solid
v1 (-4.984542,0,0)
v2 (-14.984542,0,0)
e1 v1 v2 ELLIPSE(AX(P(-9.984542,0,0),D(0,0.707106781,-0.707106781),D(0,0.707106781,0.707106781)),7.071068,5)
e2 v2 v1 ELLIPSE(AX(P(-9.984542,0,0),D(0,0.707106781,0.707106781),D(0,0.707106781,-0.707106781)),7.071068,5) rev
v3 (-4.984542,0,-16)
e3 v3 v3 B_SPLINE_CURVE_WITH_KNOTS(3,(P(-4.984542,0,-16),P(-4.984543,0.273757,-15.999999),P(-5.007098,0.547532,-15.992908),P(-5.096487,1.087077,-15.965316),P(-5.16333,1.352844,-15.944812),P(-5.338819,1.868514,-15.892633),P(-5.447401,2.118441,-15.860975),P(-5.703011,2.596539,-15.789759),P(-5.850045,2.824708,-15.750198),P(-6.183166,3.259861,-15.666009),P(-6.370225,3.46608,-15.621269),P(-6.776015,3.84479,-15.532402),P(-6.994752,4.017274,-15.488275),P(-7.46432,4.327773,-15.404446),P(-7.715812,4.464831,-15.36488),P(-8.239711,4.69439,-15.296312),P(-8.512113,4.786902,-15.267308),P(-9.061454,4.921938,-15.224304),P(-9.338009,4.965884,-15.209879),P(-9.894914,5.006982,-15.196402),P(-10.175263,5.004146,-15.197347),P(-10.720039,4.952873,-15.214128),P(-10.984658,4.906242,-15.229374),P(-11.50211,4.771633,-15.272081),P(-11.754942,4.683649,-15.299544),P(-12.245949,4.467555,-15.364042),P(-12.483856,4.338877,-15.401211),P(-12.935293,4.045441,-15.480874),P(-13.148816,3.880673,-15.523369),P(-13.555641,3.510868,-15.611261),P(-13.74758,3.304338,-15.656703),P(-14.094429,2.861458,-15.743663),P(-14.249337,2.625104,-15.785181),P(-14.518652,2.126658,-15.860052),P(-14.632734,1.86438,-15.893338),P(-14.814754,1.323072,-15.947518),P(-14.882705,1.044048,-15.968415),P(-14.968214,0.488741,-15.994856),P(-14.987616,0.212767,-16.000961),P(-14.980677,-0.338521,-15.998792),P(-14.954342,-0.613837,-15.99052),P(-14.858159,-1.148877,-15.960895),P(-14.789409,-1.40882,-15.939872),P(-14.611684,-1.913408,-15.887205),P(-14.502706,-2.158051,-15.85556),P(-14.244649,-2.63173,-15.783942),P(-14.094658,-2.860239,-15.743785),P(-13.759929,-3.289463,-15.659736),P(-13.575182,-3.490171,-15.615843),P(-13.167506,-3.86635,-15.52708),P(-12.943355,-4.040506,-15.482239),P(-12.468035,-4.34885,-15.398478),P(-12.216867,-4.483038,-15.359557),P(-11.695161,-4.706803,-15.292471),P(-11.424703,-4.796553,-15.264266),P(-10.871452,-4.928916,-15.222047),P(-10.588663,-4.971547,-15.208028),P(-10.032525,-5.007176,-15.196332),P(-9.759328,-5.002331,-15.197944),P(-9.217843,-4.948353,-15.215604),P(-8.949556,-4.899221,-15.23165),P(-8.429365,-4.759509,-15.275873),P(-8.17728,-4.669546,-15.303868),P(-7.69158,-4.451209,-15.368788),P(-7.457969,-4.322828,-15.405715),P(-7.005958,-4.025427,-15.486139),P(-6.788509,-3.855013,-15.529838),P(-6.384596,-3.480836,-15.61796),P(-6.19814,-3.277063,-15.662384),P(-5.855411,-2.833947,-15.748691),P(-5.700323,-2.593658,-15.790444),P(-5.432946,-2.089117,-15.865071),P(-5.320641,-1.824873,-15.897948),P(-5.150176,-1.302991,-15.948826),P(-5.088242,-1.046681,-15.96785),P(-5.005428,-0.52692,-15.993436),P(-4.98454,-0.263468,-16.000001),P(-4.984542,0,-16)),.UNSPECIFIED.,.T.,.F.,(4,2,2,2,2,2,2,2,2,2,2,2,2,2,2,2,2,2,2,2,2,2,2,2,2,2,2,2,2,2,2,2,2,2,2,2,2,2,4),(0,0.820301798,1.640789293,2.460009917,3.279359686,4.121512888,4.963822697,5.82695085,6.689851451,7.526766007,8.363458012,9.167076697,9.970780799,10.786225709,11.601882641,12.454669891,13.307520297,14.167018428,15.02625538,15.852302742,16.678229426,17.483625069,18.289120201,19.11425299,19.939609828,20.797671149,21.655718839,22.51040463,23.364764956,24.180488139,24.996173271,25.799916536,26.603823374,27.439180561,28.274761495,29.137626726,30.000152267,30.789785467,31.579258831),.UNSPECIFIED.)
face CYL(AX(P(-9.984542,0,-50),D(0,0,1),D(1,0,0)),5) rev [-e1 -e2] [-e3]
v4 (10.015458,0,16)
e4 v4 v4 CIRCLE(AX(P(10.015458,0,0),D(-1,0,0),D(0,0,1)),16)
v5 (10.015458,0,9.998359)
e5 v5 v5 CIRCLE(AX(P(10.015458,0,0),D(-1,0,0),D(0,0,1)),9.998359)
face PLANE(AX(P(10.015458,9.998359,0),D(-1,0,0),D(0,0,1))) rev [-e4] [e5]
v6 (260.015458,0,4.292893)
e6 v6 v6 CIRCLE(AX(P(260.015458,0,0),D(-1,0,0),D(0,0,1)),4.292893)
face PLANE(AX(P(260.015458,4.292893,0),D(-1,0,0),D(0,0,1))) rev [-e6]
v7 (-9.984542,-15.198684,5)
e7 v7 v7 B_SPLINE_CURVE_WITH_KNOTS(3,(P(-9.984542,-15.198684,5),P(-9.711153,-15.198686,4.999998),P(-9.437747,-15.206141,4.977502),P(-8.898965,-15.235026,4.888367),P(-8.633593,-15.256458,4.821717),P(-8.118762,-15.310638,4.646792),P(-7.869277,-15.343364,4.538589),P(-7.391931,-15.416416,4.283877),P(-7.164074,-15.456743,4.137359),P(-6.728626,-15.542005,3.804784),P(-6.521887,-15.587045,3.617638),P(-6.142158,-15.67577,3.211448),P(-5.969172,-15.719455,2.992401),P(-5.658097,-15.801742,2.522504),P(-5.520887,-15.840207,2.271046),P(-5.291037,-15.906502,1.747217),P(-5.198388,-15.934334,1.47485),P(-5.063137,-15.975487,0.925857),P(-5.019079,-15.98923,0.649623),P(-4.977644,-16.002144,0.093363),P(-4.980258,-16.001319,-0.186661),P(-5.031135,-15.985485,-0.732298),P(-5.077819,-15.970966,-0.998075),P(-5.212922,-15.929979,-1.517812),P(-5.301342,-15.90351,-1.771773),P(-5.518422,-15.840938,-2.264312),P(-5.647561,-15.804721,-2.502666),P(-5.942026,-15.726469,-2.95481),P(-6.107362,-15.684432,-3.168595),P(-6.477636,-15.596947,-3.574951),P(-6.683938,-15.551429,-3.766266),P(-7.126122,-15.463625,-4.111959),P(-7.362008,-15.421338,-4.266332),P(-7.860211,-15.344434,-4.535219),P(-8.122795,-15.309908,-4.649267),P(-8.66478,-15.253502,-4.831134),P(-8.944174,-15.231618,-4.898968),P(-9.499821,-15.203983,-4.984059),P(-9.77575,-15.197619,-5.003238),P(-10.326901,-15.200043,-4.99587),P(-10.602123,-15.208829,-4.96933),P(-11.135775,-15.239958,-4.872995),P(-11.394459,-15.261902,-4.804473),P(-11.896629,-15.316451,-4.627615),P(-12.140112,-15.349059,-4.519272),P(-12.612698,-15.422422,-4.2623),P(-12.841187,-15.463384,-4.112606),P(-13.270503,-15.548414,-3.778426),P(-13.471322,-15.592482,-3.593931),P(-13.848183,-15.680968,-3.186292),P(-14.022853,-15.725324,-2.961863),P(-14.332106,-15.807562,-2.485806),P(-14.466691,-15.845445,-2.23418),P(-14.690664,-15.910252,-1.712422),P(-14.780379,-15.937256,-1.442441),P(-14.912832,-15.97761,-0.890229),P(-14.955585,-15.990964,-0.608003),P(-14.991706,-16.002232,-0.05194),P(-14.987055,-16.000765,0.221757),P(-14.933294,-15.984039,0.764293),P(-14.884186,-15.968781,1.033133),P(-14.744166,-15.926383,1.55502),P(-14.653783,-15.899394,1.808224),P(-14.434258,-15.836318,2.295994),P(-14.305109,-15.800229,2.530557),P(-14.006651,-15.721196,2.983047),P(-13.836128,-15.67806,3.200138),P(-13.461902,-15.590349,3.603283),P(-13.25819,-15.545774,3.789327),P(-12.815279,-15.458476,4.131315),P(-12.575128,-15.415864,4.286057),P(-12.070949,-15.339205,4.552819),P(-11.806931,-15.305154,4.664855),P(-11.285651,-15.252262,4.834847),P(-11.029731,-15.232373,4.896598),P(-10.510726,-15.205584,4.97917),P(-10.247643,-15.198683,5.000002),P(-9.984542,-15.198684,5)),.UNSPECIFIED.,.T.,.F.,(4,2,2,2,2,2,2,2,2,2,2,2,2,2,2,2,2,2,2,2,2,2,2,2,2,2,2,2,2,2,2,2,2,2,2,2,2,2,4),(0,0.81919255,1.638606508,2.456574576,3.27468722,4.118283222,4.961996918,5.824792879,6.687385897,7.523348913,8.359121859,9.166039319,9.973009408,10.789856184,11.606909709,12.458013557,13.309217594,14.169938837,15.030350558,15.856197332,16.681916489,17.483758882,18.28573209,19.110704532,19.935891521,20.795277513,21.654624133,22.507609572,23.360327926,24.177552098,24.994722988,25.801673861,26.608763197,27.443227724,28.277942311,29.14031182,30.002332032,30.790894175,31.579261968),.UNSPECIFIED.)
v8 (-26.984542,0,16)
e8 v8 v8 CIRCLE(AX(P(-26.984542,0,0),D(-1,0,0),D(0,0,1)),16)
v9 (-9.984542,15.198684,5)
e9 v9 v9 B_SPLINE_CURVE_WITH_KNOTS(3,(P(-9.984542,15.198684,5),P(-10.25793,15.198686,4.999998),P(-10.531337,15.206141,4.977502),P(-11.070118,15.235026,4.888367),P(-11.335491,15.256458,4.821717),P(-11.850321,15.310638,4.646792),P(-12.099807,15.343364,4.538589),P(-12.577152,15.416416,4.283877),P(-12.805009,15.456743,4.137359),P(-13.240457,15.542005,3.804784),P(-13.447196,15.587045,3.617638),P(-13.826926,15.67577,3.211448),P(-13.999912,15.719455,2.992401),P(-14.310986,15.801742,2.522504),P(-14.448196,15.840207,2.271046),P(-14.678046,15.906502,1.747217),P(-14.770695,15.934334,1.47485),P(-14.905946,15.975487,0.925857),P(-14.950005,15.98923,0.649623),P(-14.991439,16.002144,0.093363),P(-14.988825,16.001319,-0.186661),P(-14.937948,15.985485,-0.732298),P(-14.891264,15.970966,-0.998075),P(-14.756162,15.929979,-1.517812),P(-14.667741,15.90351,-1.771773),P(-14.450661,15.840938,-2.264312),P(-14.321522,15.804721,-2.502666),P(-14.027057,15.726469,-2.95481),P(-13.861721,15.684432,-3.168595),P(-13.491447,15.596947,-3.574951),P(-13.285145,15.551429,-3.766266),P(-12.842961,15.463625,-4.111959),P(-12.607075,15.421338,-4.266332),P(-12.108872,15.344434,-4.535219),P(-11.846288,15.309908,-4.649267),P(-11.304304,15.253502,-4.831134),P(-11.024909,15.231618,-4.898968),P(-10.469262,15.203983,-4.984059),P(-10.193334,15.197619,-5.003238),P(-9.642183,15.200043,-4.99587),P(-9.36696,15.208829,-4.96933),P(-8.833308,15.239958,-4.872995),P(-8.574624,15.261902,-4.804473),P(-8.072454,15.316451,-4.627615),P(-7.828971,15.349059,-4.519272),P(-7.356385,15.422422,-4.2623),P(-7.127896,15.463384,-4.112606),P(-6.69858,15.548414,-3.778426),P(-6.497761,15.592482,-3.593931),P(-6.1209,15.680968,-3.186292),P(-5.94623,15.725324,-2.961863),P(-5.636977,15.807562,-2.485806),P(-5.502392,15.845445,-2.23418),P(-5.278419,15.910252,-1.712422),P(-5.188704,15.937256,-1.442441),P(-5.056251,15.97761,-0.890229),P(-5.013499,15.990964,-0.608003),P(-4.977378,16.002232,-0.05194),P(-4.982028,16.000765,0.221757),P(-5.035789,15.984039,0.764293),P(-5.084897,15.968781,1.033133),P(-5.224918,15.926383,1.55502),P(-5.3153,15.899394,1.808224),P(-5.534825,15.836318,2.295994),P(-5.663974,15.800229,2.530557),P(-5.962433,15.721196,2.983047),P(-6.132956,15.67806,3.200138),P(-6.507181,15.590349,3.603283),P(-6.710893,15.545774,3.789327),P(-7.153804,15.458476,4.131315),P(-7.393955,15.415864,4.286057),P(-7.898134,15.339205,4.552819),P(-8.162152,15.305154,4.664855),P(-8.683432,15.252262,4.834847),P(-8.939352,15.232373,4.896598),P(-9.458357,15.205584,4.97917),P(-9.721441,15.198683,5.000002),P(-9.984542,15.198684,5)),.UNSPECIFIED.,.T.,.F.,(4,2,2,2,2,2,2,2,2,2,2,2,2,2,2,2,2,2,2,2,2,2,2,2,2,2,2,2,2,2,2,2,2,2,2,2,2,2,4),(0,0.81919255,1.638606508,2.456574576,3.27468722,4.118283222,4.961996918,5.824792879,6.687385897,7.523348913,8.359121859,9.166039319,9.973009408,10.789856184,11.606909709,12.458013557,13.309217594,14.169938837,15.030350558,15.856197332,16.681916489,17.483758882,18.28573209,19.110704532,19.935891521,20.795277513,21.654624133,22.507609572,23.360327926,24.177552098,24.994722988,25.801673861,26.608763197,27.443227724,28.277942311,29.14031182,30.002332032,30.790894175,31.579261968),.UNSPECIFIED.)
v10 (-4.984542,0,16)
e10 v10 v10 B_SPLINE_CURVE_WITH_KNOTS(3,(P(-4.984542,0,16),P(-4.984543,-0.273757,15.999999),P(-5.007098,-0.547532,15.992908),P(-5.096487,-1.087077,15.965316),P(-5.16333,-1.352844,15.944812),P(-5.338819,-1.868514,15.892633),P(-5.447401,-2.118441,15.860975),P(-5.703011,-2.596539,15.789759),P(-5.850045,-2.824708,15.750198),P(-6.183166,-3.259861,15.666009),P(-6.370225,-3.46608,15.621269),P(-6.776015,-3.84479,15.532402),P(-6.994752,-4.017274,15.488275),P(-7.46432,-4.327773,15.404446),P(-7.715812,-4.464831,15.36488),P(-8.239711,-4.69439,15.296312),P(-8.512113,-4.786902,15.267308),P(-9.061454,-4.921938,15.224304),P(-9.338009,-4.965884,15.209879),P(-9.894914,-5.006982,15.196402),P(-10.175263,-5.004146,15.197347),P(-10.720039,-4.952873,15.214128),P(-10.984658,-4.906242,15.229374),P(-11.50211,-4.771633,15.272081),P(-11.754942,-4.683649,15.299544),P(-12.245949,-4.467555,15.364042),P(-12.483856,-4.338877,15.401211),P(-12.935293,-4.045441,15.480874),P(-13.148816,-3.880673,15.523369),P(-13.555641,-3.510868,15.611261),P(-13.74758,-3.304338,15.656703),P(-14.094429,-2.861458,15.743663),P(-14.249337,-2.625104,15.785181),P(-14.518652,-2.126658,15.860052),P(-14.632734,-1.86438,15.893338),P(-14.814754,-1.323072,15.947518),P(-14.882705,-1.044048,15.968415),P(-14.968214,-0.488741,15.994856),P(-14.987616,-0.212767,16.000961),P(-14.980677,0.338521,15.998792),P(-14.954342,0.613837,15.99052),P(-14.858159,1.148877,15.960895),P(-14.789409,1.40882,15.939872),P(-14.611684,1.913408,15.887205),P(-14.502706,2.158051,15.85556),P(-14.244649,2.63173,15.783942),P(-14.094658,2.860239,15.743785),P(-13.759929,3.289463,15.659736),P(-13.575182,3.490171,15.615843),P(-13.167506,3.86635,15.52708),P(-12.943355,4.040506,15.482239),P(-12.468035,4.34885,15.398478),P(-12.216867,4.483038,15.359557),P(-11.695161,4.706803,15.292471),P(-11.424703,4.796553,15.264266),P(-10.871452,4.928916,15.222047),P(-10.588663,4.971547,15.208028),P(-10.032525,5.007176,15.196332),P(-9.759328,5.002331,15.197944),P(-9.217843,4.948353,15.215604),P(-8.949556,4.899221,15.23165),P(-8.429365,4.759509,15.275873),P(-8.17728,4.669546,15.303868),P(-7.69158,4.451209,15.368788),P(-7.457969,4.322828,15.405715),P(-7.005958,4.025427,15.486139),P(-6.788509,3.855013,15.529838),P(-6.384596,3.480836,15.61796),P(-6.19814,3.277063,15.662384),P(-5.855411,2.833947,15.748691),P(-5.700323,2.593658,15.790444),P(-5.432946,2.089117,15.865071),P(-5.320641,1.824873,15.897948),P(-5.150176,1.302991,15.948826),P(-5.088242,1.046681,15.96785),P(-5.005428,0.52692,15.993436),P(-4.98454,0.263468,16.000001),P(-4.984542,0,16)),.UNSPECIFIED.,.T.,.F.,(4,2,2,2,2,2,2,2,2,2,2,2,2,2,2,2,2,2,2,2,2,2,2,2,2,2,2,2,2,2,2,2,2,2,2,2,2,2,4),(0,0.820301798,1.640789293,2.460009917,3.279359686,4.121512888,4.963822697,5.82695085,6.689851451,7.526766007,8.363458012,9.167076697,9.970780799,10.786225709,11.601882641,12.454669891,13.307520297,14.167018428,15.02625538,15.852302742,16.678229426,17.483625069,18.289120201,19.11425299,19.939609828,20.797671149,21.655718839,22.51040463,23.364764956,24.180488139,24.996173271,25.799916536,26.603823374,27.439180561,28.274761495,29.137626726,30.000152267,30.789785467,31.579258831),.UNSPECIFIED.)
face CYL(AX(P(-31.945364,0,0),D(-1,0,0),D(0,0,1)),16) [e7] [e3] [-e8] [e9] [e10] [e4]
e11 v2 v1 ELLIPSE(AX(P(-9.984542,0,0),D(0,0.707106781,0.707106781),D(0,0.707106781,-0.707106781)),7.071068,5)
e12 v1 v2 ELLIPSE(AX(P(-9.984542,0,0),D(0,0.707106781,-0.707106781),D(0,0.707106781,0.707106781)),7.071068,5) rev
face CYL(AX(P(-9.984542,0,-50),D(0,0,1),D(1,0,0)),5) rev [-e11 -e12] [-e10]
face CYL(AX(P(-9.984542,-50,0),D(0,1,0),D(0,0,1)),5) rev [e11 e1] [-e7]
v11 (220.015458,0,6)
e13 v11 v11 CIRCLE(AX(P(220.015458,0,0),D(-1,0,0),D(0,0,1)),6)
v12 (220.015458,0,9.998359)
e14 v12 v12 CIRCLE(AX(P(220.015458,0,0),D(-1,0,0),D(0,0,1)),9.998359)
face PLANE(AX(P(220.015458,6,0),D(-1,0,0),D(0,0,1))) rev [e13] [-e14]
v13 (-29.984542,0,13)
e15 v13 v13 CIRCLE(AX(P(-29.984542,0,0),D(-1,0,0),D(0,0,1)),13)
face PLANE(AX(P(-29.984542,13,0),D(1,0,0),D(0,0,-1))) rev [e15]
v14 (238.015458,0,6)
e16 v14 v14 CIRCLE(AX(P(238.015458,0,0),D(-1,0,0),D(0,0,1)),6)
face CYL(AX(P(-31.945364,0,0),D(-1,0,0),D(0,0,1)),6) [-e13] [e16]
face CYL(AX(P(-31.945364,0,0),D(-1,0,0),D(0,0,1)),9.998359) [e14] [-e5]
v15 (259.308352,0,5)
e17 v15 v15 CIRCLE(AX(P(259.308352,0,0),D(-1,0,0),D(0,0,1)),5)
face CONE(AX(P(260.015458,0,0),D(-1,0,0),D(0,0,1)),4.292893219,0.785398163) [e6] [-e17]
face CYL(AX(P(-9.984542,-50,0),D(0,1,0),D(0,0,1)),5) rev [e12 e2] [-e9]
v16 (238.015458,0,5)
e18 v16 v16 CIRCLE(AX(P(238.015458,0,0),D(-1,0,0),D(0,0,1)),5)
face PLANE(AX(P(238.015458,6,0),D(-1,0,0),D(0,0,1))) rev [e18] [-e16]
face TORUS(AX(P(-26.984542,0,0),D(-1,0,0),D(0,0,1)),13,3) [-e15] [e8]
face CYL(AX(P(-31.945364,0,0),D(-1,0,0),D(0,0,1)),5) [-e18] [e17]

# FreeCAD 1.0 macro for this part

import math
import FreeCAD as App
import Part
import Sketcher
from FreeCAD import Vector
Q = App.Units.Quantity

doc = App.newDocument("Part")
body = doc.addObject("PartDesign::Body", "Body")

sketch1 = body.newObject("Sketcher::SketchObject", "Sketch")
sketch1.AttachmentSupport = (doc.getObject("XY_Plane"), [""])
sketch1.MapMode = "FlatFace"
sketch1.addGeometry([
    Part.LineSegment(Vector(238, 5, 0), Vector(238, 6, 0)),
    Part.LineSegment(Vector(238, 6, 0), Vector(220, 6, 0)),
    Part.LineSegment(Vector(220, 6, 0), Vector(220, 10, 0)),
    Part.LineSegment(Vector(220, 10, 0), Vector(10, 10, 0)),
    Part.LineSegment(Vector(10, 10, 0), Vector(10, 16, 0)),
    Part.LineSegment(Vector(10, 16, 0), Vector(-27, 16, 0)),
    Part.ArcOfCircle(Part.Circle(Vector(-27, 13, 0), Vector(0, 0, 1), 3), math.radians(90), math.radians(180)),
    Part.LineSegment(Vector(-30, 13, 0), Vector(-30, 0, 0)),
    Part.LineSegment(Vector(-30, 0, 0), Vector(260, 0, 0)),
    Part.LineSegment(Vector(260, 0, 0), Vector(260, 4.3, 0)),
    Part.LineSegment(Vector(260, 4.3, 0), Vector(259.3, 5, 0)),
    Part.LineSegment(Vector(259.3, 5, 0), Vector(238, 5, 0)),
], False)
sketch1.addConstraint([
    Sketcher.Constraint("Coincident", 0, 2, 1, 1),
    Sketcher.Constraint("Coincident", 1, 2, 2, 1),
    Sketcher.Constraint("Coincident", 2, 2, 3, 1),
    Sketcher.Constraint("Coincident", 3, 2, 4, 1),
    Sketcher.Constraint("Coincident", 4, 2, 5, 1),
    Sketcher.Constraint("Tangent", 5, 2, 6, 1),
    Sketcher.Constraint("Tangent", 6, 2, 7, 1),
    Sketcher.Constraint("Coincident", 7, 2, 8, 1),
    Sketcher.Constraint("Coincident", 8, 2, 9, 1),
    Sketcher.Constraint("Coincident", 9, 2, 10, 1),
    Sketcher.Constraint("Coincident", 10, 2, 11, 1),
    Sketcher.Constraint("Coincident", 11, 2, 0, 1),
    Sketcher.Constraint("Vertical", 0),
    Sketcher.Constraint("Horizontal", 1),
    Sketcher.Constraint("Vertical", 2),
    Sketcher.Constraint("Horizontal", 3),
    Sketcher.Constraint("Vertical", 4),
    Sketcher.Constraint("Horizontal", 5),
    Sketcher.Constraint("Vertical", 7),
    Sketcher.Constraint("Horizontal", 8),
    Sketcher.Constraint("Vertical", 9),
    Sketcher.Constraint("Horizontal", 11),
    Sketcher.Constraint("PointOnObject", 7, 2, -1),
    Sketcher.Constraint("Radius", 6, 3.0),
    Sketcher.Constraint("DistanceX", 1, 2, 1, 1, 18.0),
    Sketcher.Constraint("DistanceX", 3, 2, 3, 1, 210.0),
    Sketcher.Constraint("DistanceX", 5, 2, 5, 1, 37.0),
    Sketcher.Constraint("DistanceX", 8, 1, 8, 2, 290.0),
    Sketcher.Constraint("DistanceY", 0, 1, 0, 2, 1.0),
    Sketcher.Constraint("DistanceY", 7, 2, 7, 1, 13.0),
    Sketcher.Constraint("Angle", 10, Q("135 deg")),
    Sketcher.Constraint("Distance", 10, 1.0),
    Sketcher.Constraint("DistanceY", -1, 1, 0, 2, 6.0),
    Sketcher.Constraint("DistanceY", 2, 1, 2, 2, 3.998359),
    Sketcher.Constraint("DistanceX", 6, 3, -1, 1, 26.984542),
])
revolution = body.newObject("PartDesign::Revolution", "Revolution")
revolution.Profile = sketch1
revolution.ReferenceAxis = (sketch1, ["H_Axis"])
revolution.Angle = 360

sketch2 = body.newObject("Sketcher::SketchObject", "Sketch001")
sketch2.AttachmentSupport = (doc.getObject("XZ_Plane"), [""])
sketch2.MapMode = "FlatFace"
sketch2.addGeometry(Part.Circle(Vector(-10, 0, 0), Vector(0, 0, 1), 5), False)
sketch2.addConstraint([
    Sketcher.Constraint("PointOnObject", 0, 3, -1),
    Sketcher.Constraint("Diameter", 0, 10.0),
    Sketcher.Constraint("DistanceX", 0, 3, -1, 1, 9.984542),
])
pocket1 = body.newObject("PartDesign::Pocket", "Pocket")
pocket1.Profile = sketch2
pocket1.Length = 100
pocket1.Midplane = True

sketch3 = body.newObject("Sketcher::SketchObject", "Sketch002")
sketch3.AttachmentSupport = (doc.getObject("XY_Plane"), [""])
sketch3.MapMode = "FlatFace"
sketch3.addGeometry(Part.Circle(Vector(-10, 0, 0), Vector(0, 0, 1), 5), False)
sketch3.addConstraint([
    Sketcher.Constraint("PointOnObject", 0, 3, -1),
    Sketcher.Constraint("Diameter", 0, 10.0),
    Sketcher.Constraint("DistanceX", 0, 3, -1, 1, 9.984542),
])
pocket2 = body.newObject("PartDesign::Pocket", "Pocket001")
pocket2.Profile = sketch3
pocket2.Length = 100
pocket2.Midplane = True

doc.recompute()
